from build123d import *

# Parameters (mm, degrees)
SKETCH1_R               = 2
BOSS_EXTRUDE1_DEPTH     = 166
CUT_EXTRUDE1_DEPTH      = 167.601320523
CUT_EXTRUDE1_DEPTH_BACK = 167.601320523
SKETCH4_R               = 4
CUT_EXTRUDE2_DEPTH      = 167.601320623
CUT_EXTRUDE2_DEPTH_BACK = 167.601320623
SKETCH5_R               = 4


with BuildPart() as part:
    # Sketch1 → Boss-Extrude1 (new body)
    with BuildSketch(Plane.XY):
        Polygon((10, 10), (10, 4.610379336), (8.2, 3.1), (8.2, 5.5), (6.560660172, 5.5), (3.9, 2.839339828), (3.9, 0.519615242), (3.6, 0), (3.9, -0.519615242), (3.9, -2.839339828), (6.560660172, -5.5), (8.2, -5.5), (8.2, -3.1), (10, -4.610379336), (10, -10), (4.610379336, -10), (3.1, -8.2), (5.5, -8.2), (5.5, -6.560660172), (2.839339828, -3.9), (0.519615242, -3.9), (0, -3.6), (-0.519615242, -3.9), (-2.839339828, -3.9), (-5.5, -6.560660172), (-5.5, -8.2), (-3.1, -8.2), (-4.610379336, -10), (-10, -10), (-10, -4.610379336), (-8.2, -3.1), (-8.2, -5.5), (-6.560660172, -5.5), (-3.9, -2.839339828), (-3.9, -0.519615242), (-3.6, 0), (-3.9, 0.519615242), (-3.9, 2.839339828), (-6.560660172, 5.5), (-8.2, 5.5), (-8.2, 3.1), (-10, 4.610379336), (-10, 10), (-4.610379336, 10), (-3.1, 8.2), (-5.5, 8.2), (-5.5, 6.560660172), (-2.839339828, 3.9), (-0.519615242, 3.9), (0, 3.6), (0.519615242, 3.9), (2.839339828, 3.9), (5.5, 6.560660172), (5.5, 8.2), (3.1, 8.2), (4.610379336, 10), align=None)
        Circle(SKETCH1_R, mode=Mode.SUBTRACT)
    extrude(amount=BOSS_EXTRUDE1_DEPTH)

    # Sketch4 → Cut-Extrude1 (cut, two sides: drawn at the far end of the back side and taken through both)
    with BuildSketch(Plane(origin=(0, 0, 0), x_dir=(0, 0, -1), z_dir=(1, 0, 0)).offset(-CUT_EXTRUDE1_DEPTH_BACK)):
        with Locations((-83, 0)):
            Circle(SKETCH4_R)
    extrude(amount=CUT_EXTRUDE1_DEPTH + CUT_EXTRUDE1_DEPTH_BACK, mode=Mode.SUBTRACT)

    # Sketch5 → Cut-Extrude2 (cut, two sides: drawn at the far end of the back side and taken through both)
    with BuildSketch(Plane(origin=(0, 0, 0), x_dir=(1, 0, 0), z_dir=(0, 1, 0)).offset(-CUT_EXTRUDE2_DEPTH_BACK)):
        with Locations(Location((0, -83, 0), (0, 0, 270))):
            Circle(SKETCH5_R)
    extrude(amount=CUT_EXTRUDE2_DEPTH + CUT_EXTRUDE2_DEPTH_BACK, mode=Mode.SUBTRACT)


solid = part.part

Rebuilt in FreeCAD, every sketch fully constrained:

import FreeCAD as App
import Part
import Sketcher
Q = App.Units.Quantity

doc = App.newDocument("Part")
params = doc.addObject("Spreadsheet::Sheet", "Params")
for row, (alias, value) in enumerate([
    ("sketch1_diameter", "4 mm"),
    ("sketch1_width", "2.4 mm"),
    ("sketch1_length", "0.6 mm"),
    ("pad1_length", "166 mm"),
    ("sketch2_diameter", "8 mm"),
    ("sketch3_diameter", "8 mm"),
], start=1):
    params.set(f"A{row}", alias)
    params.set(f"B{row}", "=" + value)
    params.setAlias(f"B{row}", alias)

body = doc.addObject("PartDesign::Body", "Body")

# Sketch on XY plane
sketch1 = doc.addObject("Sketcher::SketchObject", "Sketch")
body.addObject(sketch1)
sketch1.AttachmentSupport = (doc.XY_Plane, [""])
sketch1.MapMode = "FlatFace"
sketch1.addGeometry([
    Part.LineSegment(App.Vector(10, 4.6, 0), App.Vector(10, 10, 0)),  # 0
    Part.LineSegment(App.Vector(10, 10, 0), App.Vector(4.6, 10, 0)),  # 1
    Part.LineSegment(App.Vector(4.6, 10, 0), App.Vector(3.1, 8.2, 0)),  # 2
    Part.LineSegment(App.Vector(3.1, 8.2, 0), App.Vector(5.5, 8.2, 0)),  # 3
    Part.LineSegment(App.Vector(5.5, 8.2, 0), App.Vector(5.5, 6.6, 0)),  # 4
    Part.LineSegment(App.Vector(5.5, 6.6, 0), App.Vector(2.8, 3.9, 0)),  # 5
    Part.LineSegment(App.Vector(2.8, 3.9, 0), App.Vector(0.5, 3.9, 0)),  # 6
    Part.LineSegment(App.Vector(0.5, 3.9, 0), App.Vector(0, 3.6, 0)),  # 7
    Part.LineSegment(App.Vector(0, 3.6, 0), App.Vector(-0.5, 3.9, 0)),  # 8
    Part.LineSegment(App.Vector(-0.5, 3.9, 0), App.Vector(-2.8, 3.9, 0)),  # 9
    Part.LineSegment(App.Vector(-2.8, 3.9, 0), App.Vector(-5.5, 6.6, 0)),  # 10
    Part.LineSegment(App.Vector(-5.5, 6.6, 0), App.Vector(-5.5, 8.2, 0)),  # 11
    Part.LineSegment(App.Vector(-5.5, 8.2, 0), App.Vector(-3.1, 8.2, 0)),  # 12
    Part.LineSegment(App.Vector(-3.1, 8.2, 0), App.Vector(-4.6, 10, 0)),  # 13
    Part.LineSegment(App.Vector(-4.6, 10, 0), App.Vector(-10, 10, 0)),  # 14
    Part.LineSegment(App.Vector(-10, 10, 0), App.Vector(-10, 4.6, 0)),  # 15
    Part.LineSegment(App.Vector(-10, 4.6, 0), App.Vector(-8.2, 3.1, 0)),  # 16
    Part.LineSegment(App.Vector(-8.2, 3.1, 0), App.Vector(-8.2, 5.5, 0)),  # 17
    Part.LineSegment(App.Vector(-8.2, 5.5, 0), App.Vector(-6.6, 5.5, 0)),  # 18
    Part.LineSegment(App.Vector(-6.6, 5.5, 0), App.Vector(-3.9, 2.8, 0)),  # 19
    Part.LineSegment(App.Vector(-3.9, 2.8, 0), App.Vector(-3.9, 0.5, 0)),  # 20
    Part.LineSegment(App.Vector(-3.9, 0.5, 0), App.Vector(-3.6, 0, 0)),  # 21
    Part.LineSegment(App.Vector(-3.6, 0, 0), App.Vector(-3.9, -0.5, 0)),  # 22
    Part.LineSegment(App.Vector(-3.9, -0.5, 0), App.Vector(-3.9, -2.8, 0)),  # 23
    Part.LineSegment(App.Vector(-3.9, -2.8, 0), App.Vector(-6.6, -5.5, 0)),  # 24
    Part.LineSegment(App.Vector(-6.6, -5.5, 0), App.Vector(-8.2, -5.5, 0)),  # 25
    Part.LineSegment(App.Vector(-8.2, -5.5, 0), App.Vector(-8.2, -3.1, 0)),  # 26
    Part.LineSegment(App.Vector(-8.2, -3.1, 0), App.Vector(-10, -4.6, 0)),  # 27
    Part.LineSegment(App.Vector(-10, -4.6, 0), App.Vector(-10, -10, 0)),  # 28
    Part.LineSegment(App.Vector(-10, -10, 0), App.Vector(-4.6, -10, 0)),  # 29
    Part.LineSegment(App.Vector(-4.6, -10, 0), App.Vector(-3.1, -8.2, 0)),  # 30
    Part.LineSegment(App.Vector(-3.1, -8.2, 0), App.Vector(-5.5, -8.2, 0)),  # 31
    Part.LineSegment(App.Vector(-5.5, -8.2, 0), App.Vector(-5.5, -6.6, 0)),  # 32
    Part.LineSegment(App.Vector(-5.5, -6.6, 0), App.Vector(-2.8, -3.9, 0)),  # 33
    Part.LineSegment(App.Vector(-2.8, -3.9, 0), App.Vector(-0.5, -3.9, 0)),  # 34
    Part.LineSegment(App.Vector(-0.5, -3.9, 0), App.Vector(0, -3.6, 0)),  # 35
    Part.LineSegment(App.Vector(0, -3.6, 0), App.Vector(0.5, -3.9, 0)),  # 36
    Part.LineSegment(App.Vector(0.5, -3.9, 0), App.Vector(2.8, -3.9, 0)),  # 37
    Part.LineSegment(App.Vector(2.8, -3.9, 0), App.Vector(5.5, -6.6, 0)),  # 38
    Part.LineSegment(App.Vector(5.5, -6.6, 0), App.Vector(5.5, -8.2, 0)),  # 39
    Part.LineSegment(App.Vector(5.5, -8.2, 0), App.Vector(3.1, -8.2, 0)),  # 40
    Part.LineSegment(App.Vector(3.1, -8.2, 0), App.Vector(4.6, -10, 0)),  # 41
    Part.LineSegment(App.Vector(4.6, -10, 0), App.Vector(10, -10, 0)),  # 42
    Part.LineSegment(App.Vector(10, -10, 0), App.Vector(10, -4.6, 0)),  # 43
    Part.LineSegment(App.Vector(10, -4.6, 0), App.Vector(8.2, -3.1, 0)),  # 44
    Part.LineSegment(App.Vector(8.2, -3.1, 0), App.Vector(8.2, -5.5, 0)),  # 45
    Part.LineSegment(App.Vector(8.2, -5.5, 0), App.Vector(6.6, -5.5, 0)),  # 46
    Part.LineSegment(App.Vector(6.6, -5.5, 0), App.Vector(3.9, -2.8, 0)),  # 47
    Part.LineSegment(App.Vector(3.9, -2.8, 0), App.Vector(3.9, -0.5, 0)),  # 48
    Part.LineSegment(App.Vector(3.9, -0.5, 0), App.Vector(3.6, 0, 0)),  # 49
    Part.LineSegment(App.Vector(3.6, 0, 0), App.Vector(3.9, 0.5, 0)),  # 50
    Part.LineSegment(App.Vector(3.9, 0.5, 0), App.Vector(3.9, 2.8, 0)),  # 51
    Part.LineSegment(App.Vector(3.9, 2.8, 0), App.Vector(6.6, 5.5, 0)),  # 52
    Part.LineSegment(App.Vector(6.6, 5.5, 0), App.Vector(8.2, 5.5, 0)),  # 53
    Part.LineSegment(App.Vector(8.2, 5.5, 0), App.Vector(8.2, 3.1, 0)),  # 54
    Part.LineSegment(App.Vector(8.2, 3.1, 0), App.Vector(10, 4.6, 0)),  # 55
    Part.Circle(App.Vector(0, 0, 0), App.Vector(0, 0, 1), 2),  # 56
], False)
sketch1.addConstraint([
    Sketcher.Constraint("Coincident", 0, 2, 1, 1),
    Sketcher.Constraint("Coincident", 1, 2, 2, 1),
    Sketcher.Constraint("Coincident", 2, 2, 3, 1),
    Sketcher.Constraint("Coincident", 3, 2, 4, 1),
    Sketcher.Constraint("Coincident", 4, 2, 5, 1),
    Sketcher.Constraint("Coincident", 5, 2, 6, 1),
    Sketcher.Constraint("Coincident", 6, 2, 7, 1),
    Sketcher.Constraint("Coincident", 7, 2, 8, 1),
    Sketcher.Constraint("Coincident", 8, 2, 9, 1),
    Sketcher.Constraint("Coincident", 9, 2, 10, 1),
    Sketcher.Constraint("Coincident", 10, 2, 11, 1),
    Sketcher.Constraint("Coincident", 11, 2, 12, 1),
    Sketcher.Constraint("Coincident", 12, 2, 13, 1),
    Sketcher.Constraint("Coincident", 13, 2, 14, 1),
    Sketcher.Constraint("Coincident", 14, 2, 15, 1),
    Sketcher.Constraint("Coincident", 15, 2, 16, 1),
    Sketcher.Constraint("Coincident", 16, 2, 17, 1),
    Sketcher.Constraint("Coincident", 17, 2, 18, 1),
    Sketcher.Constraint("Coincident", 18, 2, 19, 1),
    Sketcher.Constraint("Coincident", 19, 2, 20, 1),
    Sketcher.Constraint("Coincident", 20, 2, 21, 1),
    Sketcher.Constraint("Coincident", 21, 2, 22, 1),
    Sketcher.Constraint("Coincident", 22, 2, 23, 1),
    Sketcher.Constraint("Coincident", 23, 2, 24, 1),
    Sketcher.Constraint("Coincident", 24, 2, 25, 1),
    Sketcher.Constraint("Coincident", 25, 2, 26, 1),
    Sketcher.Constraint("Coincident", 26, 2, 27, 1),
    Sketcher.Constraint("Coincident", 27, 2, 28, 1),
    Sketcher.Constraint("Coincident", 28, 2, 29, 1),
    Sketcher.Constraint("Coincident", 29, 2, 30, 1),
    Sketcher.Constraint("Coincident", 30, 2, 31, 1),
    Sketcher.Constraint("Coincident", 31, 2, 32, 1),
    Sketcher.Constraint("Coincident", 32, 2, 33, 1),
    Sketcher.Constraint("Coincident", 33, 2, 34, 1),
    Sketcher.Constraint("Coincident", 34, 2, 35, 1),
    Sketcher.Constraint("Coincident", 35, 2, 36, 1),
    Sketcher.Constraint("Coincident", 36, 2, 37, 1),
    Sketcher.Constraint("Coincident", 37, 2, 38, 1),
    Sketcher.Constraint("Coincident", 38, 2, 39, 1),
    Sketcher.Constraint("Coincident", 39, 2, 40, 1),
    Sketcher.Constraint("Coincident", 40, 2, 41, 1),
    Sketcher.Constraint("Coincident", 41, 2, 42, 1),
    Sketcher.Constraint("Coincident", 42, 2, 43, 1),
    Sketcher.Constraint("Coincident", 43, 2, 44, 1),
    Sketcher.Constraint("Coincident", 44, 2, 45, 1),
    Sketcher.Constraint("Coincident", 45, 2, 46, 1),
    Sketcher.Constraint("Coincident", 46, 2, 47, 1),
    Sketcher.Constraint("Coincident", 47, 2, 48, 1),
    Sketcher.Constraint("Coincident", 48, 2, 49, 1),
    Sketcher.Constraint("Coincident", 49, 2, 50, 1),
    Sketcher.Constraint("Coincident", 50, 2, 51, 1),
    Sketcher.Constraint("Coincident", 51, 2, 52, 1),
    Sketcher.Constraint("Coincident", 52, 2, 53, 1),
    Sketcher.Constraint("Coincident", 53, 2, 54, 1),
    Sketcher.Constraint("Coincident", 54, 2, 55, 1),
    Sketcher.Constraint("Coincident", 55, 2, 0, 1),
    Sketcher.Constraint("Vertical", 0),
    Sketcher.Constraint("Horizontal", 1),
    Sketcher.Constraint("Horizontal", 3),
    Sketcher.Constraint("Vertical", 4),
    Sketcher.Constraint("Horizontal", 6),
    Sketcher.Constraint("Horizontal", 9),
    Sketcher.Constraint("Vertical", 11),
    Sketcher.Constraint("Horizontal", 12),
    Sketcher.Constraint("Horizontal", 14),
    Sketcher.Constraint("Vertical", 15),
    Sketcher.Constraint("Vertical", 17),
    Sketcher.Constraint("Horizontal", 18),
    Sketcher.Constraint("Vertical", 20),
    Sketcher.Constraint("Vertical", 23),
    Sketcher.Constraint("Horizontal", 25),
    Sketcher.Constraint("Vertical", 26),
    Sketcher.Constraint("Vertical", 28),
    Sketcher.Constraint("Horizontal", 29),
    Sketcher.Constraint("Horizontal", 31),
    Sketcher.Constraint("Vertical", 32),
    Sketcher.Constraint("Horizontal", 34),
    Sketcher.Constraint("Horizontal", 37),
    Sketcher.Constraint("Vertical", 39),
    Sketcher.Constraint("Horizontal", 40),
    Sketcher.Constraint("Horizontal", 42),
    Sketcher.Constraint("Vertical", 43),
    Sketcher.Constraint("Vertical", 45),
    Sketcher.Constraint("Horizontal", 46),
    Sketcher.Constraint("Vertical", 48),
    Sketcher.Constraint("Vertical", 51),
    Sketcher.Constraint("Horizontal", 53),
    Sketcher.Constraint("Vertical", 54),
    Sketcher.Constraint("Coincident", 56, 3, -1, 1),
    Sketcher.Constraint("Symmetric", 0, 2, 28, 2, -1, 1),
    Sketcher.Constraint("Symmetric", 2, 2, 30, 2, -1, 1),
    Sketcher.Constraint("Symmetric", 4, 2, 32, 2, -1, 1),
    Sketcher.Constraint("Symmetric", 5, 2, 33, 2, -1, 1),
    Sketcher.Constraint("Symmetric", 7, 2, 35, 2, -1, 1),
    Sketcher.Constraint("Symmetric", 8, 2, 36, 2, -1, 1),
    Sketcher.Constraint("Symmetric", 10, 2, 38, 2, -1, 1),
    Sketcher.Constraint("Symmetric", 12, 2, 40, 2, -1, 1),
    Sketcher.Constraint("Symmetric", 13, 2, 41, 2, -1, 1),
    Sketcher.Constraint("Symmetric", 15, 2, 43, 2, -1, 1),
    Sketcher.Constraint("Symmetric", 16, 2, 44, 2, -1, 1),
    Sketcher.Constraint("Symmetric", 18, 2, 46, 2, -1, 1),
    Sketcher.Constraint("Symmetric", 19, 2, 47, 2, -1, 1),
    Sketcher.Constraint("Symmetric", 21, 2, 49, 2, -1, 1),
    Sketcher.Constraint("Symmetric", 22, 2, 50, 2, -1, 1),
    Sketcher.Constraint("Symmetric", 24, 2, 52, 2, -1, 1),
    Sketcher.Constraint("Symmetric", 26, 2, 54, 2, -1, 1),
    Sketcher.Constraint("Symmetric", 6, 2, 8, 2, -2),
    Sketcher.Constraint("Symmetric", 4, 2, 10, 2, -2),
    Sketcher.Constraint("Symmetric", 2, 2, 12, 2, -2),
    Sketcher.Constraint("Symmetric", 1, 2, 13, 2, -2),
    Sketcher.Constraint("Symmetric", 27, 2, 43, 2, -2),
    Sketcher.Constraint("Symmetric", 26, 2, 44, 2, -2),
    Sketcher.Constraint("Symmetric", 24, 2, 46, 2, -2),
    Sketcher.Constraint("Symmetric", 23, 2, 47, 2, -2),
    Sketcher.Constraint("PointOnObject", 7, 2, -2),
    Sketcher.Constraint("PointOnObject", 21, 2, -1),
    Sketcher.Constraint("Perpendicular", 5, 10),
    Sketcher.Constraint("Perpendicular", 2, 16),
    Sketcher.Constraint("Parallel", 10, 19),
    Sketcher.Constraint("Perpendicular", 7, 21),
    Sketcher.Constraint("Perpendicular", 8, 22),
    Sketcher.Constraint("Perpendicular", 19, 24),
    Sketcher.Constraint("Perpendicular", 16, 30),
    Sketcher.Constraint("Perpendicular", 21, 35),
    Sketcher.Constraint("Perpendicular", 33, 38),
    Sketcher.Constraint("Perpendicular", 35, 49),
    Sketcher.Constraint("Perpendicular", 47, 52),
    Sketcher.Constraint("Perpendicular", 41, 55),
    Sketcher.Constraint("Equal", 42, 0),
    Sketcher.Constraint("Equal", 53, 4),
    Sketcher.Constraint("Equal", 40, 17),
    Sketcher.Constraint("Equal", 37, 20),
    Sketcher.Constraint("Equal", 13, 16),
    Sketcher.Constraint("Equal", 10, 19),
    Sketcher.Constraint("Equal", 8, 21),
    Sketcher.Constraint("Diameter", 56, Q("4 mm")),
    Sketcher.Constraint("Angle", 2, Q("-130 deg")),
    Sketcher.Constraint("Angle", 7, Q("-150 deg")),
    Sketcher.Constraint("DistanceX", 3, 1, 3, 2, Q("2.4 mm")),
    Sketcher.Constraint("DistanceX", -1, 1, 0, 2, Q("10 mm")),
    Sketcher.Constraint("Distance", 7, Q("0.6 mm")),
    Sketcher.Constraint("DistanceX", -1, 1, 2, 2, Q("3.1 mm")),
    Sketcher.Constraint("DistanceY", -1, 1, 2, 2, Q("8.2 mm")),
    Sketcher.Constraint("DistanceY", -1, 1, 5, 2, Q("3.9 mm")),
    Sketcher.Constraint("DistanceX", 18, 1, 18, 2, Q("1.63934 mm")),
])
sketch1.setExpression("Constraints[135]", "Params.sketch1_diameter")
sketch1.setExpression("Constraints[138]", "Params.sketch1_width")
sketch1.setExpression("Constraints[140]", "Params.sketch1_length")
pad1 = doc.addObject("PartDesign::Pad", "Pad")
body.addObject(pad1)
pad1.Profile = sketch1
pad1.setExpression("Length", "Params.pad1_length")

# Sketch on YZ plane
sketch2 = doc.addObject("Sketcher::SketchObject", "Sketch001")
body.addObject(sketch2)
sketch2.AttachmentSupport = (doc.YZ_Plane, [""])
sketch2.MapMode = "FlatFace"
sketch2.addGeometry(Part.Circle(App.Vector(0, 83, 0), App.Vector(0, 0, 1), 4), False)
sketch2.addConstraint([
    Sketcher.Constraint("PointOnObject", 0, 3, -2),
    Sketcher.Constraint("Diameter", 0, Q("8 mm")),
    Sketcher.Constraint("DistanceY", -1, 1, 0, 3, Q("83 mm")),
])
sketch2.setExpression("Constraints[1]", "Params.sketch2_diameter")
pocket1 = doc.addObject("PartDesign::Pocket", "Pocket")
body.addObject(pocket1)
pocket1.Profile = sketch2
pocket1.Type = "ThroughAll"
pocket1.Midplane = True

# Sketch on XZ plane
sketch3 = doc.addObject("Sketcher::SketchObject", "Sketch002")
body.addObject(sketch3)
sketch3.AttachmentSupport = (doc.XZ_Plane, [""])
sketch3.MapMode = "FlatFace"
sketch3.addGeometry(Part.Circle(App.Vector(0, 83, 0), App.Vector(0, 0, 1), 4), False)
sketch3.addConstraint([
    Sketcher.Constraint("PointOnObject", 0, 3, -2),
    Sketcher.Constraint("Diameter", 0, Q("8 mm")),
    Sketcher.Constraint("DistanceY", -1, 1, 0, 3, Q("83 mm")),
])
sketch3.setExpression("Constraints[1]", "Params.sketch3_diameter")
pocket2 = doc.addObject("PartDesign::Pocket", "Pocket001")
body.addObject(pocket2)
pocket2.Profile = sketch3
pocket2.Type = "ThroughAll"
pocket2.Midplane = True

doc.recompute()
